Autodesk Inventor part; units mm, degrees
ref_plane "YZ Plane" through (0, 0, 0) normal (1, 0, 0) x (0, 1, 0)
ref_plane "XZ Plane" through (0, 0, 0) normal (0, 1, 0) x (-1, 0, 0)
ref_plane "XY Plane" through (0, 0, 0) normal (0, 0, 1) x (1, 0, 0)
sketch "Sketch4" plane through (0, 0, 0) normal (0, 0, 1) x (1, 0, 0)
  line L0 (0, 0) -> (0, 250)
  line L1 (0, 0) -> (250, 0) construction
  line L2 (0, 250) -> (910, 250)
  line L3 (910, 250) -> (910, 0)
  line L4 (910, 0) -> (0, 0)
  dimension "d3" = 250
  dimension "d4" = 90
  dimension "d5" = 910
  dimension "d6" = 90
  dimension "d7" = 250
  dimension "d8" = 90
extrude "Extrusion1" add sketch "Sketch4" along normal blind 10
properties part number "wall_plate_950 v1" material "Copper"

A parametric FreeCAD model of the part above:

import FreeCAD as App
import Part
import Sketcher
from FreeCAD import Vector
Q = App.Units.Quantity


def add_polygon(sketch, points):
    """Adds a closed chain of lines whose ends are joined by coincident constraints."""
    first, n = sketch.GeometryCount, len(points)
    for a, b in zip(points, points[1:] + points[:1]):
        sketch.addGeometry(Part.LineSegment(App.Vector(*a, 0), App.Vector(*b, 0)), False)
    for i in range(n):
        sketch.addConstraint(Sketcher.Constraint("Coincident", first + i, 2, first + (i + 1) % n, 1))

doc = App.newDocument("Part")
body = doc.addObject("PartDesign::Body", "Body")

# Sketch on XY plane
sketch1 = body.newObject("Sketcher::SketchObject", "Sketch")
sketch1.AttachmentSupport = (doc.getObject("XY_Plane"), [""])
sketch1.MapMode = "FlatFace"
add_polygon(sketch1, [(0, 250), (0, 0), (910, 0), (910, 250)])  # lines 0-3
sketch1.addConstraint([
    Sketcher.Constraint("Vertical", 0),
    Sketcher.Constraint("Horizontal", 1),
    Sketcher.Constraint("Vertical", 2),
    Sketcher.Constraint("Horizontal", 3),
    Sketcher.Constraint("Coincident", 0, 2, -1, 1),
    Sketcher.Constraint("DistanceX", 1, 1, 1, 2, Q("910 mm")),
    Sketcher.Constraint("DistanceY", 0, 2, 0, 1, Q("250 mm")),
])
pad1 = body.newObject("PartDesign::Pad", "Pad")
pad1.Profile = sketch1
pad1.Length = 10

doc.recompute()
